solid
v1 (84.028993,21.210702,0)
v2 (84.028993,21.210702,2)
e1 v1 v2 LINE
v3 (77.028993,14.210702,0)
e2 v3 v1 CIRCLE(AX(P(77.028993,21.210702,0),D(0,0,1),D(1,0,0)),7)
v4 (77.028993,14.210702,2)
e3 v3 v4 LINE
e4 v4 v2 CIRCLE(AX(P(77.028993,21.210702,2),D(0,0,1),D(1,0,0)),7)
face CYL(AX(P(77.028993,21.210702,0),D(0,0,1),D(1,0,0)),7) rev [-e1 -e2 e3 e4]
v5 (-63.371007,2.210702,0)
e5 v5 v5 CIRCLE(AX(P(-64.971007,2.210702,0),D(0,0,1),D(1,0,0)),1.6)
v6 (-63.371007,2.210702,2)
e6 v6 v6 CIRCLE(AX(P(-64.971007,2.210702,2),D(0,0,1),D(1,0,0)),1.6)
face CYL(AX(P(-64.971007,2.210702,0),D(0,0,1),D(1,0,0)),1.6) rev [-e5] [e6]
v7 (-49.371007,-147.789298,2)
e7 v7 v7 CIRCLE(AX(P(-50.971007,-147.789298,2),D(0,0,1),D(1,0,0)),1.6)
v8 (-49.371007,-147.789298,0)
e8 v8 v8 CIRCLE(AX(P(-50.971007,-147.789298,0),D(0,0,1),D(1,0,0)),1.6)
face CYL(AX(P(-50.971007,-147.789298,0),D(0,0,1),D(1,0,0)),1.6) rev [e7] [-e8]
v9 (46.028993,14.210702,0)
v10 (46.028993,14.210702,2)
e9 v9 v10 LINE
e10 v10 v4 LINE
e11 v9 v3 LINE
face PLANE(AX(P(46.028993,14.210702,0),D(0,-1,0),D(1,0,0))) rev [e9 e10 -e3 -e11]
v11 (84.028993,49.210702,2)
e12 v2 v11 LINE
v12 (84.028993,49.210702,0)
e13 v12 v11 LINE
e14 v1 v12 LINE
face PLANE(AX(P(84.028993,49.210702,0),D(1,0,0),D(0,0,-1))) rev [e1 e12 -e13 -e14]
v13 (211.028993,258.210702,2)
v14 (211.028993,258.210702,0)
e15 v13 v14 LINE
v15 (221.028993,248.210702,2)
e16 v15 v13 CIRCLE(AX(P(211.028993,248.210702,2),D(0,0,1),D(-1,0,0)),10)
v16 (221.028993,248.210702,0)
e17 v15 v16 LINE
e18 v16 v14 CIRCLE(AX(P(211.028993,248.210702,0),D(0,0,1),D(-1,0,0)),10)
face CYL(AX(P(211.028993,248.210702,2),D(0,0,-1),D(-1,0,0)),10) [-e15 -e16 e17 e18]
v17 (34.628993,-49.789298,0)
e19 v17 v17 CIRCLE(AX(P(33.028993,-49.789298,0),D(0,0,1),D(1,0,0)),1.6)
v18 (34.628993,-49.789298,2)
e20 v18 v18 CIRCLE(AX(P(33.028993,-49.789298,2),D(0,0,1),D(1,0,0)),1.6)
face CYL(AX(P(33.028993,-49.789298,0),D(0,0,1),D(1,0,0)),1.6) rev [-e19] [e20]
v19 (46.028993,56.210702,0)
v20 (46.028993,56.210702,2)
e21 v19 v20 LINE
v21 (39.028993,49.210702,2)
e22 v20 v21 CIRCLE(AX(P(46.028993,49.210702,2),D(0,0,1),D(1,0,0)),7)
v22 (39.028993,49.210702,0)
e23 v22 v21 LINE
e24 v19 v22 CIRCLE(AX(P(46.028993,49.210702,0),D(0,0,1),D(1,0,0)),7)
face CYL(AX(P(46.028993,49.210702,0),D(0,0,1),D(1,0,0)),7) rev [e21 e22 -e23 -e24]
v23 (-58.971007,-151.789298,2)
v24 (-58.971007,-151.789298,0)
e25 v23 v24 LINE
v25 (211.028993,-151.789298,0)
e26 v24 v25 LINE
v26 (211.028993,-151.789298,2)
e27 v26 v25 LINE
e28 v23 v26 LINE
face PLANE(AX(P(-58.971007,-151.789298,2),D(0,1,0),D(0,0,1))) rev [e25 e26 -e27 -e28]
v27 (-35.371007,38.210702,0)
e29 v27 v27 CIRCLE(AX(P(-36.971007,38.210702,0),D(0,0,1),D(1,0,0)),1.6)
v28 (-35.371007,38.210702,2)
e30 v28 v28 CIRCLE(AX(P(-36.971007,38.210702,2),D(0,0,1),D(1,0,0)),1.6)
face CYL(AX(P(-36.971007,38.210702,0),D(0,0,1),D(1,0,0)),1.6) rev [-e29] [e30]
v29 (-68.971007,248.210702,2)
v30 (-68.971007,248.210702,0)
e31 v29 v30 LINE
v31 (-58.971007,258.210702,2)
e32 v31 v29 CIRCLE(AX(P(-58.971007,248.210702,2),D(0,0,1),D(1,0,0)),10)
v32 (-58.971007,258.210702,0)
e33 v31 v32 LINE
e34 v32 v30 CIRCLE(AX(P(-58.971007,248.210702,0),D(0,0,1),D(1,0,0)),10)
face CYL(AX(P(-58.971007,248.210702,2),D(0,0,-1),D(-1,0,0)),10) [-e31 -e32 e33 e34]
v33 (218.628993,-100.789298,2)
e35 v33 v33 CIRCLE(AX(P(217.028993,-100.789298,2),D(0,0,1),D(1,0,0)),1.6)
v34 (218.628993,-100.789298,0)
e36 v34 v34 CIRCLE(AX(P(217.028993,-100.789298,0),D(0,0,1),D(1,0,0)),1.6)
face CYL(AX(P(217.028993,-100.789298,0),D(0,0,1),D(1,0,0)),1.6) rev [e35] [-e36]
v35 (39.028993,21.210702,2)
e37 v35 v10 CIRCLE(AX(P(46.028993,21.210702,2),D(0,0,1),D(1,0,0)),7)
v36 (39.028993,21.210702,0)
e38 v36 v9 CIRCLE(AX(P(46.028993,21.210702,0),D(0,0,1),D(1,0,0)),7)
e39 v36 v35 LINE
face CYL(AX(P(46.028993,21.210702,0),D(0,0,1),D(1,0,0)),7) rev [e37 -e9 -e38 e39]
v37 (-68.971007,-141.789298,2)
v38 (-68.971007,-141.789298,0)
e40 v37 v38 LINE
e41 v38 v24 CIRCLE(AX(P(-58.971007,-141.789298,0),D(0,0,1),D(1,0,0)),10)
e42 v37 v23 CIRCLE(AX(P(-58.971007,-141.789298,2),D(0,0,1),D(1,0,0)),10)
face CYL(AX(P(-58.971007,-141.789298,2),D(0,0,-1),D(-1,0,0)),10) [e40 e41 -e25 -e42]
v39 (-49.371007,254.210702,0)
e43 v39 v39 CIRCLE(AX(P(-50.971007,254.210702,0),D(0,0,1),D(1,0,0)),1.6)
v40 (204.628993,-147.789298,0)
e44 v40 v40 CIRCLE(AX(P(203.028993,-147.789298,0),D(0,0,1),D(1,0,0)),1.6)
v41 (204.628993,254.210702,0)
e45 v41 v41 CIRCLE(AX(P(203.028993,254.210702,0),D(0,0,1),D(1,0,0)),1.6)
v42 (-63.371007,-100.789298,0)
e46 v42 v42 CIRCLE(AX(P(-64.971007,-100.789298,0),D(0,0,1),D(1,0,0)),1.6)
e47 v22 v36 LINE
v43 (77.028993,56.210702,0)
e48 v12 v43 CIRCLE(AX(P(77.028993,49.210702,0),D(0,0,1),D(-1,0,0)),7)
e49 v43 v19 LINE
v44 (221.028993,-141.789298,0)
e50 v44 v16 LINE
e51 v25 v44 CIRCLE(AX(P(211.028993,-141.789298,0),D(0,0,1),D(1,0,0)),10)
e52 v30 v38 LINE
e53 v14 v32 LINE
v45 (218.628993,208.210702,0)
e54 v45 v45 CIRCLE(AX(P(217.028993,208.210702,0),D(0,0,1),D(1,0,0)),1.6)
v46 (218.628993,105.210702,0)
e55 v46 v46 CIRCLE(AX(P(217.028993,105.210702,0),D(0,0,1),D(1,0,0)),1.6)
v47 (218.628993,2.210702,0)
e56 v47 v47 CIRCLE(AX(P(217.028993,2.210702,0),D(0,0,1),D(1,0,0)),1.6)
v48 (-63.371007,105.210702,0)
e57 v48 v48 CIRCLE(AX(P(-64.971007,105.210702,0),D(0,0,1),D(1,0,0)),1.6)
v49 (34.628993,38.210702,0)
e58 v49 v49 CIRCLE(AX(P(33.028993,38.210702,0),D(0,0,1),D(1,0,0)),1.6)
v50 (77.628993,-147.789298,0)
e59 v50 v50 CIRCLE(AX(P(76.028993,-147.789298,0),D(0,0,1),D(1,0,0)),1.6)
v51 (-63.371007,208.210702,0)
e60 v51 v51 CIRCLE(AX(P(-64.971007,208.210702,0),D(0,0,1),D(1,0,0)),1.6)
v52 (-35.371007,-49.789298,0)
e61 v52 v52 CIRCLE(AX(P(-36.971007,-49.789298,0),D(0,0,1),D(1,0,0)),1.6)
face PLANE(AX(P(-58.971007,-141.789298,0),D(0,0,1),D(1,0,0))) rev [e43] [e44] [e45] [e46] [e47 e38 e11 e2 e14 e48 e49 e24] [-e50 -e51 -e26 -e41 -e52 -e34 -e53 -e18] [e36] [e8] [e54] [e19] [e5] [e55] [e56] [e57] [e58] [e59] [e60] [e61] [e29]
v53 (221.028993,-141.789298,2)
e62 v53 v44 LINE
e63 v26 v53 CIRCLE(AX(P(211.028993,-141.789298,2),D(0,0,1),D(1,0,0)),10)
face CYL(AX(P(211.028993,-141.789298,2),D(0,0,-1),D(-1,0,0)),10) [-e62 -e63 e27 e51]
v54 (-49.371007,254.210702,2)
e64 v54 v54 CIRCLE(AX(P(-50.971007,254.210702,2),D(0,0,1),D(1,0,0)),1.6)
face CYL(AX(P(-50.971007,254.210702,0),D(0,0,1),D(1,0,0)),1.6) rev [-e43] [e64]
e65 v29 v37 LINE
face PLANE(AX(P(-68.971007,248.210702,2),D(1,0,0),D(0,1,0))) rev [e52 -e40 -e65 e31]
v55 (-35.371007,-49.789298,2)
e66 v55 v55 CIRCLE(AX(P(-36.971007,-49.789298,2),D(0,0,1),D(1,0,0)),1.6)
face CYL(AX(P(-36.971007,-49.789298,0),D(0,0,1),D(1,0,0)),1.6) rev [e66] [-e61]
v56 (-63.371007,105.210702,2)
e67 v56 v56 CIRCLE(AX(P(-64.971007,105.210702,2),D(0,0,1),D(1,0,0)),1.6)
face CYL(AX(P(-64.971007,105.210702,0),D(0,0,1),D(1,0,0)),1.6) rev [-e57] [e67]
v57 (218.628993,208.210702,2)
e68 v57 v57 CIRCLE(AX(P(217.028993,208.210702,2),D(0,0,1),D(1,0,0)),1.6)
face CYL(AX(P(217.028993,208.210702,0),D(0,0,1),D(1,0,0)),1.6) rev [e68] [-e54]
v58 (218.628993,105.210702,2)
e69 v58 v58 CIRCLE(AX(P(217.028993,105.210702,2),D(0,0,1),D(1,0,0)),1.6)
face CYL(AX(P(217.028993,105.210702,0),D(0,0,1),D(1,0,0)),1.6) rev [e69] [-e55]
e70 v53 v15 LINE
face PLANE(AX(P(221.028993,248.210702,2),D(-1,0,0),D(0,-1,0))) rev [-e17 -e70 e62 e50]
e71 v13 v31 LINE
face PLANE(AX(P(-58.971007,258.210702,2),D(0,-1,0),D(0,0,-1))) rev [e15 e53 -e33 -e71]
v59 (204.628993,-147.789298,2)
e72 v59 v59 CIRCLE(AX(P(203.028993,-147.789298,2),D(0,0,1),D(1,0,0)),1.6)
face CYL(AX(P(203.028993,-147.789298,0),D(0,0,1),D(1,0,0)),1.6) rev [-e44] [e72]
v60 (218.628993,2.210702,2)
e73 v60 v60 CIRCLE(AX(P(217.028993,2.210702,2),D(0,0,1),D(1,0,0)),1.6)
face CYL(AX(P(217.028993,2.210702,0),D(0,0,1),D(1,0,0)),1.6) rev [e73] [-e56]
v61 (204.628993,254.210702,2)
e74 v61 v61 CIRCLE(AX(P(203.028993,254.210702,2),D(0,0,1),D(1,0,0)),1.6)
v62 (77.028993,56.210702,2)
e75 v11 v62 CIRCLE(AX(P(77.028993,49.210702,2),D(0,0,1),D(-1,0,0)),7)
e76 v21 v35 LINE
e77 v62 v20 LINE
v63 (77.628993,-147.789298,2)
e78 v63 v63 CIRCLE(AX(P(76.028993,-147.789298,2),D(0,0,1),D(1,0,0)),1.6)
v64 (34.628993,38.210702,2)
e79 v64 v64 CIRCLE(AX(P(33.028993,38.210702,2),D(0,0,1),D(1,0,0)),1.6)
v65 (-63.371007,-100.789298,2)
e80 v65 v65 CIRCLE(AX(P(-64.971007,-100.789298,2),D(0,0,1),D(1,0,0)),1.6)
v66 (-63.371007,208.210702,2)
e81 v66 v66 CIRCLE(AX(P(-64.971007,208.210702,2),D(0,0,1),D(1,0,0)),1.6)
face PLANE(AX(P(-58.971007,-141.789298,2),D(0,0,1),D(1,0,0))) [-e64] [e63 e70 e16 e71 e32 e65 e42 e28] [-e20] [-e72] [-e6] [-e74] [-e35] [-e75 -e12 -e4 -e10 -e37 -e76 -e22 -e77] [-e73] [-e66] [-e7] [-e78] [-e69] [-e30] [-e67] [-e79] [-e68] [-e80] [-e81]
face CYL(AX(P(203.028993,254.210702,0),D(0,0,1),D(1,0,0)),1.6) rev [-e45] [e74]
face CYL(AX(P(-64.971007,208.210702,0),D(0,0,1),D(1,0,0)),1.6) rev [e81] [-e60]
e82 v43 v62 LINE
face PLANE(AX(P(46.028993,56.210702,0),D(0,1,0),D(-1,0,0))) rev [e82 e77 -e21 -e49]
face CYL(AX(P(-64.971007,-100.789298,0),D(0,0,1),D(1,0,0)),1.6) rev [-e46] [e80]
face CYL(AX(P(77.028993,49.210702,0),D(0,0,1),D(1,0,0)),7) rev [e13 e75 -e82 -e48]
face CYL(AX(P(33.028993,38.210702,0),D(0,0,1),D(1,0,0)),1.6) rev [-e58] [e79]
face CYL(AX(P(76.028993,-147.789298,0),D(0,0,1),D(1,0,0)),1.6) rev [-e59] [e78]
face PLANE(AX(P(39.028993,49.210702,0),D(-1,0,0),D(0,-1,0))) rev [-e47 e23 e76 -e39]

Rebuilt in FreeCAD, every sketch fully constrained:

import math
import FreeCAD as App
import Part
import Sketcher
Q = App.Units.Quantity

doc = App.newDocument("Part")
params = doc.addObject("Spreadsheet::Sheet", "Params")
for row, (alias, value) in enumerate([
    ("sketch1_radius", "10 mm"),
    ("sketch1_width", "270 mm"),
    ("sketch1_height", "390 mm"),
    ("pad1_length", "2 mm"),
    ("sketch2_diameter", "3.2 mm"),
    ("sketch3_radius", "7 mm"),
    ("sketch3_diameter", "3.2 mm"),
    ("sketch3_width", "31 mm"),
    ("sketch3_height", "28 mm"),
], start=1):
    params.set(f"A{row}", alias)
    params.set(f"B{row}", "=" + value)
    params.setAlias(f"B{row}", alias)

body = doc.addObject("PartDesign::Body", "Body")

sketch1 = body.newObject("Sketcher::SketchObject", "Sketch")
sketch1.AttachmentSupport = (doc.getObject("XY_Plane"), [""])
sketch1.MapMode = "FlatFace"
sketch1.addGeometry(Part.LineSegment(App.Vector(211, 258, 0), App.Vector(-59, 258, 0)), False)
sketch1.addGeometry(Part.ArcOfCircle(Part.Circle(App.Vector(-59, 248, 0), App.Vector(0, 0, 1), 10), math.radians(90), math.radians(180)), False)
sketch1.addGeometry(Part.LineSegment(App.Vector(-69, 248, 0), App.Vector(-69, -142, 0)), False)
sketch1.addGeometry(Part.ArcOfCircle(Part.Circle(App.Vector(-59, -142, 0), App.Vector(0, 0, 1), 10), math.radians(180), math.radians(270)), False)
sketch1.addGeometry(Part.LineSegment(App.Vector(-59, -152, 0), App.Vector(211, -152, 0)), False)
sketch1.addGeometry(Part.ArcOfCircle(Part.Circle(App.Vector(211, -142, 0), App.Vector(0, 0, 1), 10), math.radians(-90), math.radians(0)), False)
sketch1.addGeometry(Part.LineSegment(App.Vector(221, -142, 0), App.Vector(221, 248, 0)), False)
sketch1.addGeometry(Part.ArcOfCircle(Part.Circle(App.Vector(211, 248, 0), App.Vector(0, 0, 1), 10), math.radians(0), math.radians(90)), False)
sketch1.addConstraint(Sketcher.Constraint("Tangent", 0, 2, 1, 1))
sketch1.addConstraint(Sketcher.Constraint("Tangent", 1, 2, 2, 1))
sketch1.addConstraint(Sketcher.Constraint("Tangent", 2, 2, 3, 1))
sketch1.addConstraint(Sketcher.Constraint("Tangent", 3, 2, 4, 1))
sketch1.addConstraint(Sketcher.Constraint("Tangent", 4, 2, 5, 1))
sketch1.addConstraint(Sketcher.Constraint("Tangent", 5, 2, 6, 1))
sketch1.addConstraint(Sketcher.Constraint("Tangent", 6, 2, 7, 1))
sketch1.addConstraint(Sketcher.Constraint("Tangent", 7, 2, 0, 1))
sketch1.addConstraint(Sketcher.Constraint("Horizontal", 0))
sketch1.addConstraint(Sketcher.Constraint("Vertical", 2))
sketch1.addConstraint(Sketcher.Constraint("Horizontal", 4))
sketch1.addConstraint(Sketcher.Constraint("Vertical", 6))
sketch1.addConstraint(Sketcher.Constraint("Equal", 1, 3))
sketch1.addConstraint(Sketcher.Constraint("Equal", 3, 5))
sketch1.addConstraint(Sketcher.Constraint("Equal", 5, 7))
sketch1.addConstraint(Sketcher.Constraint("Radius", 1, Q("10 mm")))
sketch1.addConstraint(Sketcher.Constraint("DistanceX", 0, 2, 0, 1, Q("270 mm")))
sketch1.addConstraint(Sketcher.Constraint("DistanceY", 2, 2, 2, 1, Q("390 mm")))
sketch1.addConstraint(Sketcher.Constraint("DistanceX", 1, 3, -1, 1, Q("58.971007 mm")))
sketch1.addConstraint(Sketcher.Constraint("DistanceY", -1, 1, 1, 3, Q("248.210702 mm")))
sketch1.setExpression("Constraints[15]", "Params.sketch1_radius")
sketch1.setExpression("Constraints[16]", "Params.sketch1_width")
sketch1.setExpression("Constraints[17]", "Params.sketch1_height")
pad1 = body.newObject("PartDesign::Pad", "Pad")
pad1.Profile = sketch1
pad1.setExpression("Length", "Params.pad1_length")

sketch2 = body.newObject("Sketcher::SketchObject", "Sketch001")
sketch2.AttachmentSupport = (doc.getObject("XY_Plane"), [""])
sketch2.MapMode = "FlatFace"
sketch2.AttachmentOffset = App.Placement(App.Vector(0, 0, 2), App.Rotation())
sketch2.addGeometry(Part.Circle(App.Vector(-65, 208.2, 0), App.Vector(0, 0, 1), 1.6), False)
sketch2.addGeometry(Part.Circle(App.Vector(-65, 105.2, 0), App.Vector(0, 0, 1), 1.6), False)
sketch2.addGeometry(Part.Circle(App.Vector(-65, 2.2, 0), App.Vector(0, 0, 1), 1.6), False)
sketch2.addGeometry(Part.Circle(App.Vector(-65, -100.8, 0), App.Vector(0, 0, 1), 1.6), False)
sketch2.addGeometry(Part.Circle(App.Vector(217, 208.2, 0), App.Vector(0, 0, 1), 1.6), False)
sketch2.addGeometry(Part.Circle(App.Vector(217, 105.2, 0), App.Vector(0, 0, 1), 1.6), False)
sketch2.addGeometry(Part.Circle(App.Vector(217, 2.2, 0), App.Vector(0, 0, 1), 1.6), False)
sketch2.addGeometry(Part.Circle(App.Vector(217, -100.8, 0), App.Vector(0, 0, 1), 1.6), False)
sketch2.addGeometry(Part.Circle(App.Vector(-51, 254.2, 0), App.Vector(0, 0, 1), 1.6), False)
sketch2.addGeometry(Part.Circle(App.Vector(203, 254.2, 0), App.Vector(0, 0, 1), 1.6), False)
sketch2.addGeometry(Part.Circle(App.Vector(-51, -147.8, 0), App.Vector(0, 0, 1), 1.6), False)
sketch2.addGeometry(Part.Circle(App.Vector(76, -147.8, 0), App.Vector(0, 0, 1), 1.6), False)
sketch2.addGeometry(Part.Circle(App.Vector(203, -147.8, 0), App.Vector(0, 0, 1), 1.6), False)
sketch2.addConstraint(Sketcher.Constraint("Equal", 0, 1))
sketch2.addConstraint(Sketcher.Constraint("Equal", 1, 2))
sketch2.addConstraint(Sketcher.Constraint("Equal", 2, 3))
sketch2.addConstraint(Sketcher.Constraint("Equal", 3, 4))
sketch2.addConstraint(Sketcher.Constraint("Equal", 4, 5))
sketch2.addConstraint(Sketcher.Constraint("Equal", 5, 6))
sketch2.addConstraint(Sketcher.Constraint("Equal", 6, 7))
sketch2.addConstraint(Sketcher.Constraint("Equal", 7, 8))
sketch2.addConstraint(Sketcher.Constraint("Equal", 8, 9))
sketch2.addConstraint(Sketcher.Constraint("Equal", 9, 10))
sketch2.addConstraint(Sketcher.Constraint("Equal", 10, 11))
sketch2.addConstraint(Sketcher.Constraint("Equal", 11, 12))
sketch2.addConstraint(Sketcher.Constraint("Horizontal", 0, 3, 4, 3))
sketch2.addConstraint(Sketcher.Constraint("Horizontal", 1, 3, 5, 3))
sketch2.addConstraint(Sketcher.Constraint("Horizontal", 2, 3, 6, 3))
sketch2.addConstraint(Sketcher.Constraint("Horizontal", 3, 3, 7, 3))
sketch2.addConstraint(Sketcher.Constraint("Horizontal", 8, 3, 9, 3))
sketch2.addConstraint(Sketcher.Constraint("Horizontal", 10, 3, 11, 3))
sketch2.addConstraint(Sketcher.Constraint("Horizontal", 11, 3, 12, 3))
sketch2.addConstraint(Sketcher.Constraint("Vertical", 0, 3, 1, 3))
sketch2.addConstraint(Sketcher.Constraint("Vertical", 1, 3, 2, 3))
sketch2.addConstraint(Sketcher.Constraint("Vertical", 2, 3, 3, 3))
sketch2.addConstraint(Sketcher.Constraint("Vertical", 4, 3, 5, 3))
sketch2.addConstraint(Sketcher.Constraint("Vertical", 5, 3, 6, 3))
sketch2.addConstraint(Sketcher.Constraint("Vertical", 6, 3, 7, 3))
sketch2.addConstraint(Sketcher.Constraint("Vertical", 8, 3, 10, 3))
sketch2.addConstraint(Sketcher.Constraint("Vertical", 9, 3, 12, 3))
sketch2.addConstraint(Sketcher.Constraint("Diameter", 0, Q("3.2 mm")))
sketch2.addConstraint(Sketcher.Constraint("DistanceY", 1, 3, 0, 3, Q("103 mm")))
sketch2.addConstraint(Sketcher.Constraint("DistanceY", 2, 3, 1, 3, Q("103 mm")))
sketch2.addConstraint(Sketcher.Constraint("DistanceY", 3, 3, 2, 3, Q("103 mm")))
sketch2.addConstraint(Sketcher.Constraint("DistanceX", 0, 3, 4, 3, Q("282 mm")))
sketch2.addConstraint(Sketcher.Constraint("DistanceX", 0, 3, 8, 3, Q("14 mm")))
sketch2.addConstraint(Sketcher.Constraint("DistanceY", 0, 3, 8, 3, Q("46 mm")))
sketch2.addConstraint(Sketcher.Constraint("DistanceX", 9, 3, 4, 3, Q("14 mm")))
sketch2.addConstraint(Sketcher.Constraint("DistanceY", 10, 3, 3, 3, Q("47 mm")))
sketch2.addConstraint(Sketcher.Constraint("DistanceX", 10, 3, 11, 3, Q("127 mm")))
sketch2.addConstraint(Sketcher.Constraint("DistanceX", 0, 3, -1, 1, Q("64.971007 mm")))
sketch2.addConstraint(Sketcher.Constraint("DistanceY", -1, 1, 0, 3, Q("208.210702 mm")))
sketch2.setExpression("Constraints[27]", "Params.sketch2_diameter")
pocket1 = body.newObject("PartDesign::Pocket", "Pocket")
pocket1.Profile = sketch2
pocket1.Type = "ThroughAll"

sketch3 = body.newObject("Sketcher::SketchObject", "Sketch002")
sketch3.AttachmentSupport = (doc.getObject("XY_Plane"), [""])
sketch3.MapMode = "FlatFace"
sketch3.AttachmentOffset = App.Placement(App.Vector(0, 0, 2), App.Rotation())
sketch3.addGeometry(Part.Circle(App.Vector(33, 38.2, 0), App.Vector(0, 0, 1), 1.6), False)
sketch3.addGeometry(Part.Circle(App.Vector(33, -49.8, 0), App.Vector(0, 0, 1), 1.6), False)
sketch3.addGeometry(Part.Circle(App.Vector(-37, -49.8, 0), App.Vector(0, 0, 1), 1.6), False)
sketch3.addGeometry(Part.Circle(App.Vector(-37, 38.2, 0), App.Vector(0, 0, 1), 1.6), False)
sketch3.addGeometry(Part.LineSegment(App.Vector(77, 56.2, 0), App.Vector(46, 56.2, 0)), False)
sketch3.addGeometry(Part.ArcOfCircle(Part.Circle(App.Vector(46, 49.2, 0), App.Vector(0, 0, 1), 7), math.radians(90), math.radians(180)), False)
sketch3.addGeometry(Part.LineSegment(App.Vector(39, 49.2, 0), App.Vector(39, 21.2, 0)), False)
sketch3.addGeometry(Part.ArcOfCircle(Part.Circle(App.Vector(46, 21.2, 0), App.Vector(0, 0, 1), 7), math.radians(-180), math.radians(-90)), False)
sketch3.addGeometry(Part.LineSegment(App.Vector(46, 14.2, 0), App.Vector(77, 14.2, 0)), False)
sketch3.addGeometry(Part.ArcOfCircle(Part.Circle(App.Vector(77, 21.2, 0), App.Vector(0, 0, 1), 7), math.radians(-90), math.radians(0)), False)
sketch3.addGeometry(Part.LineSegment(App.Vector(84, 21.2, 0), App.Vector(84, 49.2, 0)), False)
sketch3.addGeometry(Part.ArcOfCircle(Part.Circle(App.Vector(77, 49.2, 0), App.Vector(0, 0, 1), 7), math.radians(0), math.radians(90)), False)
sketch3.addConstraint(Sketcher.Constraint("Tangent", 4, 2, 5, 1))
sketch3.addConstraint(Sketcher.Constraint("Tangent", 5, 2, 6, 1))
sketch3.addConstraint(Sketcher.Constraint("Tangent", 6, 2, 7, 1))
sketch3.addConstraint(Sketcher.Constraint("Tangent", 7, 2, 8, 1))
sketch3.addConstraint(Sketcher.Constraint("Tangent", 8, 2, 9, 1))
sketch3.addConstraint(Sketcher.Constraint("Tangent", 9, 2, 10, 1))
sketch3.addConstraint(Sketcher.Constraint("Tangent", 10, 2, 11, 1))
sketch3.addConstraint(Sketcher.Constraint("Tangent", 11, 2, 4, 1))
sketch3.addConstraint(Sketcher.Constraint("Horizontal", 4))
sketch3.addConstraint(Sketcher.Constraint("Vertical", 6))
sketch3.addConstraint(Sketcher.Constraint("Horizontal", 8))
sketch3.addConstraint(Sketcher.Constraint("Vertical", 10))
sketch3.addConstraint(Sketcher.Constraint("Equal", 0, 1))
sketch3.addConstraint(Sketcher.Constraint("Equal", 1, 2))
sketch3.addConstraint(Sketcher.Constraint("Equal", 2, 3))
sketch3.addConstraint(Sketcher.Constraint("Equal", 5, 7))
sketch3.addConstraint(Sketcher.Constraint("Equal", 7, 9))
sketch3.addConstraint(Sketcher.Constraint("Equal", 9, 11))
sketch3.addConstraint(Sketcher.Constraint("Horizontal", 1, 3, 2, 3))
sketch3.addConstraint(Sketcher.Constraint("Horizontal", 0, 3, 3, 3))
sketch3.addConstraint(Sketcher.Constraint("Vertical", 0, 3, 1, 3))
sketch3.addConstraint(Sketcher.Constraint("Vertical", 2, 3, 3, 3))
sketch3.addConstraint(Sketcher.Constraint("Radius", 5, Q("7 mm")))
sketch3.addConstraint(Sketcher.Constraint("Diameter", 0, Q("3.2 mm")))
sketch3.addConstraint(Sketcher.Constraint("DistanceX", 4, 2, 4, 1, Q("31 mm")))
sketch3.addConstraint(Sketcher.Constraint("DistanceY", 6, 2, 6, 1, Q("28 mm")))
sketch3.addConstraint(Sketcher.Constraint("DistanceY", 1, 3, 0, 3, Q("88 mm")))
sketch3.addConstraint(Sketcher.Constraint("DistanceX", 2, 3, 1, 3, Q("70 mm")))
sketch3.addConstraint(Sketcher.Constraint("DistanceX", 0, 3, 5, 3, Q("13 mm")))
sketch3.addConstraint(Sketcher.Constraint("DistanceY", 0, 3, 5, 3, Q("11 mm")))
sketch3.addConstraint(Sketcher.Constraint("DistanceX", -1, 1, 0, 3, Q("33.028993 mm")))
sketch3.addConstraint(Sketcher.Constraint("DistanceY", -1, 1, 0, 3, Q("38.210702 mm")))
sketch3.setExpression("Constraints[22]", "Params.sketch3_radius")
sketch3.setExpression("Constraints[23]", "Params.sketch3_diameter")
sketch3.setExpression("Constraints[24]", "Params.sketch3_width")
sketch3.setExpression("Constraints[25]", "Params.sketch3_height")
pocket2 = body.newObject("PartDesign::Pocket", "Pocket001")
pocket2.Profile = sketch3
pocket2.Type = "ThroughAll"

doc.recompute()
